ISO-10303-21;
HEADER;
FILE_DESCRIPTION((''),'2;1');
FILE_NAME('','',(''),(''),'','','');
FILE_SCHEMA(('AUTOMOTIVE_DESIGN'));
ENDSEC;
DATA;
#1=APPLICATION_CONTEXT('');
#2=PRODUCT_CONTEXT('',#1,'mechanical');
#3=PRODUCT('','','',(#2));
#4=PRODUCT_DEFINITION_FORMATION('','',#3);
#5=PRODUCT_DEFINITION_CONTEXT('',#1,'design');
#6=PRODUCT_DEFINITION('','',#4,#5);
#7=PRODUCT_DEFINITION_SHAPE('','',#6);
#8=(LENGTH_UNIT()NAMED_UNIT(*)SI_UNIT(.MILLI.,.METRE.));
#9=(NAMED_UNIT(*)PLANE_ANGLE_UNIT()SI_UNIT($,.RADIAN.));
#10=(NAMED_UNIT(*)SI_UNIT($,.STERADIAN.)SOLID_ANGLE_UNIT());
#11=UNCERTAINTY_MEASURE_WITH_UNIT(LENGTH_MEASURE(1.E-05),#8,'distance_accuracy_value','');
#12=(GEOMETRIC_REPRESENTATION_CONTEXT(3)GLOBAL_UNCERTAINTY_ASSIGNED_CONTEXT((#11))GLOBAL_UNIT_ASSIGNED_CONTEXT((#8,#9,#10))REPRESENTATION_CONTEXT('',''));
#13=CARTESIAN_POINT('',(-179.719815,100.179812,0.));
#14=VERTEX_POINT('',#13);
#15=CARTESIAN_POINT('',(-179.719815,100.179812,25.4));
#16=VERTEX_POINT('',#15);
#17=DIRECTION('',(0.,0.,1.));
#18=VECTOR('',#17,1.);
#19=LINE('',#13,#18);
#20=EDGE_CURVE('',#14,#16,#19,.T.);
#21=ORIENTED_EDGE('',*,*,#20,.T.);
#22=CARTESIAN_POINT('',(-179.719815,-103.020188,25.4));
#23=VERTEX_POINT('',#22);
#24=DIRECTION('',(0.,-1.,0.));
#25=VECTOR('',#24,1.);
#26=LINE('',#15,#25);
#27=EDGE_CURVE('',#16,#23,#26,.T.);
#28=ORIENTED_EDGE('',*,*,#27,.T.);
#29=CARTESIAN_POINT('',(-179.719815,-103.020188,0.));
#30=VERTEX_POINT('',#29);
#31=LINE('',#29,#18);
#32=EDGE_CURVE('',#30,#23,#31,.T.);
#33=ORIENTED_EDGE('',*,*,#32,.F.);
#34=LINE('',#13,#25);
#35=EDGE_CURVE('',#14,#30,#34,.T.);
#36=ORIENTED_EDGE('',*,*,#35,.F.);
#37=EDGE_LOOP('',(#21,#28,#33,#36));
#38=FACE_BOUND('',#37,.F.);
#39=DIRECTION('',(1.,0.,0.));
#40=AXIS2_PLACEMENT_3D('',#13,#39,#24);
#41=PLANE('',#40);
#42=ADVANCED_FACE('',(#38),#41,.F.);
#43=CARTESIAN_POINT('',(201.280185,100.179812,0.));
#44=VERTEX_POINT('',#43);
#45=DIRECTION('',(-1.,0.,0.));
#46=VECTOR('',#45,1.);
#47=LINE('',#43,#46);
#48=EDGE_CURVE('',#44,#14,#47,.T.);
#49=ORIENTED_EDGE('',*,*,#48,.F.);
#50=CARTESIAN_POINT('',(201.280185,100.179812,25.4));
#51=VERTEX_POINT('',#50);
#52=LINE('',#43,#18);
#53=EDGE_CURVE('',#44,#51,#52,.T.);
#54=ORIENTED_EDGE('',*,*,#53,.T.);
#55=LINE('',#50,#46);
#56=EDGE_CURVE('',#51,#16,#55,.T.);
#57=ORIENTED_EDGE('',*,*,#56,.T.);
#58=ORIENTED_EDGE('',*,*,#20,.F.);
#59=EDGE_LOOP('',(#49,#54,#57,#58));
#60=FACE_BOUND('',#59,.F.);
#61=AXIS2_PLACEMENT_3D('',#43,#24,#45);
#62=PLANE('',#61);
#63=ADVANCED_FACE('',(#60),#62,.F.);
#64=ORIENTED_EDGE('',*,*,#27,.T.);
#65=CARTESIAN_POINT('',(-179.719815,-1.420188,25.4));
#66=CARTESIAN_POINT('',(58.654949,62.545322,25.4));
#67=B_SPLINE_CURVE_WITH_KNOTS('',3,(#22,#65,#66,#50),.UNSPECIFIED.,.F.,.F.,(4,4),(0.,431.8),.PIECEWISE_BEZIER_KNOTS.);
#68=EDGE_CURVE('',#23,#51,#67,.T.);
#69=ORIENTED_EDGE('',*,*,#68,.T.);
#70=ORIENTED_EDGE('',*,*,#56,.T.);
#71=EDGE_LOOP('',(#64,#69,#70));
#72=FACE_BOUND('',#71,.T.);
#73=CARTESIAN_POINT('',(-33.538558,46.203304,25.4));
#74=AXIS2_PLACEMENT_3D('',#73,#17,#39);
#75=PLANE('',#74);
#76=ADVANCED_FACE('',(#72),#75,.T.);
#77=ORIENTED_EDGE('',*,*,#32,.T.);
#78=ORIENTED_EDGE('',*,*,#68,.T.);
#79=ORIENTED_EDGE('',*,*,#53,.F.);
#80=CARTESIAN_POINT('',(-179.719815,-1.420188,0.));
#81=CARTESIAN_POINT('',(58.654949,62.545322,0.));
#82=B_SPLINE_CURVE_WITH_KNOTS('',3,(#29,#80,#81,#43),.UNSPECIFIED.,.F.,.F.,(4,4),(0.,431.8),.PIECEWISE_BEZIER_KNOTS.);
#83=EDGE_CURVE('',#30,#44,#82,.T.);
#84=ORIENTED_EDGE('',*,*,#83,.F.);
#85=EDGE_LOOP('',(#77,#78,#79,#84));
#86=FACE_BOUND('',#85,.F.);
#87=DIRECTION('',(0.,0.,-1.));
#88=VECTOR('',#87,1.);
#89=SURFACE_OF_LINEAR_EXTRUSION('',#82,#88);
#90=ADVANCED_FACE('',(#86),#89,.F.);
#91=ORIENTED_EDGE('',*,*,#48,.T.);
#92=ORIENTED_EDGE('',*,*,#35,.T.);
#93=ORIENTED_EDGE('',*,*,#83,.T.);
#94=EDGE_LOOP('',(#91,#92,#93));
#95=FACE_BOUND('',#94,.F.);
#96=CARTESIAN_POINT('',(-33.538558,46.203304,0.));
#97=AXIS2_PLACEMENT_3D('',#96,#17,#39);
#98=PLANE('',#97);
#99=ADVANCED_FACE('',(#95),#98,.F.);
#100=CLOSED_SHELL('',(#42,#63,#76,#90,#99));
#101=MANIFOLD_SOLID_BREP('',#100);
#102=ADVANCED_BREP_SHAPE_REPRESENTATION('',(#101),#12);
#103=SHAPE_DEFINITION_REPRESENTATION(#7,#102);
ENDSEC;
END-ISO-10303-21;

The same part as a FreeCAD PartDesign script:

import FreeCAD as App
import Part
import Sketcher
Q = App.Units.Quantity

doc = App.newDocument("Part")
body = doc.addObject("PartDesign::Body", "Body")

# Sketch on XY plane
sketch1 = doc.addObject("Sketcher::SketchObject", "Sketch")
body.addObject(sketch1)
sketch1.AttachmentSupport = (doc.XY_Plane, [""])
sketch1.MapMode = "FlatFace"
sketch1.addGeometry(Part.LineSegment(App.Vector(201.280185, 100.179812, 0), App.Vector(-179.719815, 100.179812, 0)), False)
sketch1.addGeometry(Part.LineSegment(App.Vector(-179.719815, 100.179812, 0), App.Vector(-179.719815, -103.020188, 0)), False)
sketch1.addGeometry(Part.BSplineCurve([App.Vector(-179.719815, -103.020188, 0), App.Vector(-179.719815, -1.420188, 0), App.Vector(58.654949, 62.545322, 0), App.Vector(201.280185, 100.179812, 0)], [4, 4], [0, 431.8], False, 3, [1, 1, 1, 1], False), False)
sketch1.addConstraint(Sketcher.Constraint("Block", 2))
sketch1.addConstraint(Sketcher.Constraint("Coincident", 0, 2, 1, 1))
sketch1.addConstraint(Sketcher.Constraint("Coincident", 1, 2, 2, 1))
sketch1.addConstraint(Sketcher.Constraint("Coincident", 2, 2, 0, 1))
sketch1.addConstraint(Sketcher.Constraint("Horizontal", 0))
sketch1.addConstraint(Sketcher.Constraint("Vertical", 1))
pad1 = doc.addObject("PartDesign::Pad", "Pad")
body.addObject(pad1)
pad1.Profile = sketch1
pad1.Length = Q("1 in")

doc.recompute()
